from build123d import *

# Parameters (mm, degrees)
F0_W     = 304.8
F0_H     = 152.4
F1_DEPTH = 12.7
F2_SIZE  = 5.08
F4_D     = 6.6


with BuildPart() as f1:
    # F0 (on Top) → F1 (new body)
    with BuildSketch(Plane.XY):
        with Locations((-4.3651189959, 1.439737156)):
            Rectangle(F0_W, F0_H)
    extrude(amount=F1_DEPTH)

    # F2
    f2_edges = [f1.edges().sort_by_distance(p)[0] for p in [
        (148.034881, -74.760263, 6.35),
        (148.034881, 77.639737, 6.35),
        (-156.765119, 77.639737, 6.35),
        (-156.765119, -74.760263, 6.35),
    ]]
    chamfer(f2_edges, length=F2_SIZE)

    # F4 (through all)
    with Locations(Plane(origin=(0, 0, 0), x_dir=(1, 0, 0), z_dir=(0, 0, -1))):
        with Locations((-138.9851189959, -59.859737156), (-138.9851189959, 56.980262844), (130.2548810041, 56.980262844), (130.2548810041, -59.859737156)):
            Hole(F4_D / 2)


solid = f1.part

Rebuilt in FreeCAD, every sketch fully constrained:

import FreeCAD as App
import Part
import Sketcher

V = App.Vector
Q = App.Units.Quantity


def edges_at(feature, points):
    """Names of the edges that pass closest to the given points."""
    edges = feature.Shape.Edges
    near = lambda p: min(range(len(edges)), key=lambda i: edges[i].distToShape(Part.Vertex(*p))[0])
    return sorted({f"Edge{near(p) + 1}" for p in points})

doc = App.newDocument("Part")
body = doc.addObject("PartDesign::Body", "Body")

sketch1 = body.newObject("Sketcher::SketchObject", "Sketch")
sketch1.AttachmentSupport = (doc.getObject("XY_Plane"), [""])
sketch1.MapMode = "FlatFace"
sketch1.addGeometry([
    Part.LineSegment(V(-156.765119, 77.639737, 0), V(-156.765119, -74.760263, 0)),
    Part.LineSegment(V(-156.765119, -74.760263, 0), V(148.034881, -74.760263, 0)),
    Part.LineSegment(V(148.034881, -74.760263, 0), V(148.034881, 77.639737, 0)),
    Part.LineSegment(V(148.034881, 77.639737, 0), V(-156.765119, 77.639737, 0)),
], False)
sketch1.addConstraint([
    Sketcher.Constraint("Coincident", 0, 2, 1, 1),
    Sketcher.Constraint("Coincident", 1, 2, 2, 1),
    Sketcher.Constraint("Coincident", 2, 2, 3, 1),
    Sketcher.Constraint("Coincident", 3, 2, 0, 1),
    Sketcher.Constraint("Vertical", 0),
    Sketcher.Constraint("Horizontal", 1),
    Sketcher.Constraint("Vertical", 2),
    Sketcher.Constraint("Horizontal", 3),
    Sketcher.Constraint("DistanceX", 1, 1, 1, 2, Q("12 in")),
    Sketcher.Constraint("DistanceY", 0, 2, 0, 1, Q("6 in")),
    Sketcher.Constraint("DistanceX", 0, 2, -1, 1, Q("156.765119 mm")),
    Sketcher.Constraint("DistanceY", 0, 2, -1, 1, Q("74.760263 mm")),
])
pad1 = body.newObject("PartDesign::Pad", "Pad")
pad1.Profile = sketch1
pad1.Length = Q("0.5 in")
doc.recompute()

chamfer = body.newObject("PartDesign::Chamfer", "Chamfer")
chamfer.Base = (pad1, edges_at(pad1, [
    (148.035, -74.76, 6.35),
    (148.035, 77.64, 6.35),
    (-156.765, 77.64, 6.35),
    (-156.765, -74.76, 6.35),
]))
chamfer.Size = Q("0.2 in")

sketch2 = body.newObject("Sketcher::SketchObject", "Sketch001")
sketch2.AttachmentSupport = (doc.getObject("XY_Plane"), [""])
sketch2.MapMode = "FlatFace"
sketch2.addGeometry([
    Part.Circle(V(-138.985119, 59.859737, 0), V(0, 0, 1), 3.3),
    Part.Circle(V(-138.985119, -56.980263, 0), V(0, 0, 1), 3.3),
    Part.Circle(V(130.254881, -56.980263, 0), V(0, 0, 1), 3.3),
    Part.Circle(V(130.254881, 59.859737, 0), V(0, 0, 1), 3.3),
], False)
sketch2.addConstraint([
    Sketcher.Constraint("Equal", 0, 1),
    Sketcher.Constraint("Equal", 1, 2),
    Sketcher.Constraint("Equal", 2, 3),
    Sketcher.Constraint("Horizontal", 1, 3, 2, 3),
    Sketcher.Constraint("Horizontal", 0, 3, 3, 3),
    Sketcher.Constraint("Vertical", 0, 3, 1, 3),
    Sketcher.Constraint("Vertical", 2, 3, 3, 3),
    Sketcher.Constraint("DistanceY", 1, 3, 0, 3, Q("4.6 in")),
    Sketcher.Constraint("DistanceX", 1, 3, 2, 3, Q("10.6 in")),
    Sketcher.Constraint("Diameter", 0, Q("6.6 mm")),
    Sketcher.Constraint("DistanceX", 0, 3, -1, 1, Q("138.985119 mm")),
    Sketcher.Constraint("DistanceY", -1, 1, 0, 3, Q("59.859737 mm")),
])
doc.recompute()
hole = body.newObject("PartDesign::Hole", "Hole")
hole.Profile = sketch2
hole.ThreadType = "None"
hole.Diameter = 6.6
hole.DepthType = "ThroughAll"
hole.Reversed = True

doc.recompute()
